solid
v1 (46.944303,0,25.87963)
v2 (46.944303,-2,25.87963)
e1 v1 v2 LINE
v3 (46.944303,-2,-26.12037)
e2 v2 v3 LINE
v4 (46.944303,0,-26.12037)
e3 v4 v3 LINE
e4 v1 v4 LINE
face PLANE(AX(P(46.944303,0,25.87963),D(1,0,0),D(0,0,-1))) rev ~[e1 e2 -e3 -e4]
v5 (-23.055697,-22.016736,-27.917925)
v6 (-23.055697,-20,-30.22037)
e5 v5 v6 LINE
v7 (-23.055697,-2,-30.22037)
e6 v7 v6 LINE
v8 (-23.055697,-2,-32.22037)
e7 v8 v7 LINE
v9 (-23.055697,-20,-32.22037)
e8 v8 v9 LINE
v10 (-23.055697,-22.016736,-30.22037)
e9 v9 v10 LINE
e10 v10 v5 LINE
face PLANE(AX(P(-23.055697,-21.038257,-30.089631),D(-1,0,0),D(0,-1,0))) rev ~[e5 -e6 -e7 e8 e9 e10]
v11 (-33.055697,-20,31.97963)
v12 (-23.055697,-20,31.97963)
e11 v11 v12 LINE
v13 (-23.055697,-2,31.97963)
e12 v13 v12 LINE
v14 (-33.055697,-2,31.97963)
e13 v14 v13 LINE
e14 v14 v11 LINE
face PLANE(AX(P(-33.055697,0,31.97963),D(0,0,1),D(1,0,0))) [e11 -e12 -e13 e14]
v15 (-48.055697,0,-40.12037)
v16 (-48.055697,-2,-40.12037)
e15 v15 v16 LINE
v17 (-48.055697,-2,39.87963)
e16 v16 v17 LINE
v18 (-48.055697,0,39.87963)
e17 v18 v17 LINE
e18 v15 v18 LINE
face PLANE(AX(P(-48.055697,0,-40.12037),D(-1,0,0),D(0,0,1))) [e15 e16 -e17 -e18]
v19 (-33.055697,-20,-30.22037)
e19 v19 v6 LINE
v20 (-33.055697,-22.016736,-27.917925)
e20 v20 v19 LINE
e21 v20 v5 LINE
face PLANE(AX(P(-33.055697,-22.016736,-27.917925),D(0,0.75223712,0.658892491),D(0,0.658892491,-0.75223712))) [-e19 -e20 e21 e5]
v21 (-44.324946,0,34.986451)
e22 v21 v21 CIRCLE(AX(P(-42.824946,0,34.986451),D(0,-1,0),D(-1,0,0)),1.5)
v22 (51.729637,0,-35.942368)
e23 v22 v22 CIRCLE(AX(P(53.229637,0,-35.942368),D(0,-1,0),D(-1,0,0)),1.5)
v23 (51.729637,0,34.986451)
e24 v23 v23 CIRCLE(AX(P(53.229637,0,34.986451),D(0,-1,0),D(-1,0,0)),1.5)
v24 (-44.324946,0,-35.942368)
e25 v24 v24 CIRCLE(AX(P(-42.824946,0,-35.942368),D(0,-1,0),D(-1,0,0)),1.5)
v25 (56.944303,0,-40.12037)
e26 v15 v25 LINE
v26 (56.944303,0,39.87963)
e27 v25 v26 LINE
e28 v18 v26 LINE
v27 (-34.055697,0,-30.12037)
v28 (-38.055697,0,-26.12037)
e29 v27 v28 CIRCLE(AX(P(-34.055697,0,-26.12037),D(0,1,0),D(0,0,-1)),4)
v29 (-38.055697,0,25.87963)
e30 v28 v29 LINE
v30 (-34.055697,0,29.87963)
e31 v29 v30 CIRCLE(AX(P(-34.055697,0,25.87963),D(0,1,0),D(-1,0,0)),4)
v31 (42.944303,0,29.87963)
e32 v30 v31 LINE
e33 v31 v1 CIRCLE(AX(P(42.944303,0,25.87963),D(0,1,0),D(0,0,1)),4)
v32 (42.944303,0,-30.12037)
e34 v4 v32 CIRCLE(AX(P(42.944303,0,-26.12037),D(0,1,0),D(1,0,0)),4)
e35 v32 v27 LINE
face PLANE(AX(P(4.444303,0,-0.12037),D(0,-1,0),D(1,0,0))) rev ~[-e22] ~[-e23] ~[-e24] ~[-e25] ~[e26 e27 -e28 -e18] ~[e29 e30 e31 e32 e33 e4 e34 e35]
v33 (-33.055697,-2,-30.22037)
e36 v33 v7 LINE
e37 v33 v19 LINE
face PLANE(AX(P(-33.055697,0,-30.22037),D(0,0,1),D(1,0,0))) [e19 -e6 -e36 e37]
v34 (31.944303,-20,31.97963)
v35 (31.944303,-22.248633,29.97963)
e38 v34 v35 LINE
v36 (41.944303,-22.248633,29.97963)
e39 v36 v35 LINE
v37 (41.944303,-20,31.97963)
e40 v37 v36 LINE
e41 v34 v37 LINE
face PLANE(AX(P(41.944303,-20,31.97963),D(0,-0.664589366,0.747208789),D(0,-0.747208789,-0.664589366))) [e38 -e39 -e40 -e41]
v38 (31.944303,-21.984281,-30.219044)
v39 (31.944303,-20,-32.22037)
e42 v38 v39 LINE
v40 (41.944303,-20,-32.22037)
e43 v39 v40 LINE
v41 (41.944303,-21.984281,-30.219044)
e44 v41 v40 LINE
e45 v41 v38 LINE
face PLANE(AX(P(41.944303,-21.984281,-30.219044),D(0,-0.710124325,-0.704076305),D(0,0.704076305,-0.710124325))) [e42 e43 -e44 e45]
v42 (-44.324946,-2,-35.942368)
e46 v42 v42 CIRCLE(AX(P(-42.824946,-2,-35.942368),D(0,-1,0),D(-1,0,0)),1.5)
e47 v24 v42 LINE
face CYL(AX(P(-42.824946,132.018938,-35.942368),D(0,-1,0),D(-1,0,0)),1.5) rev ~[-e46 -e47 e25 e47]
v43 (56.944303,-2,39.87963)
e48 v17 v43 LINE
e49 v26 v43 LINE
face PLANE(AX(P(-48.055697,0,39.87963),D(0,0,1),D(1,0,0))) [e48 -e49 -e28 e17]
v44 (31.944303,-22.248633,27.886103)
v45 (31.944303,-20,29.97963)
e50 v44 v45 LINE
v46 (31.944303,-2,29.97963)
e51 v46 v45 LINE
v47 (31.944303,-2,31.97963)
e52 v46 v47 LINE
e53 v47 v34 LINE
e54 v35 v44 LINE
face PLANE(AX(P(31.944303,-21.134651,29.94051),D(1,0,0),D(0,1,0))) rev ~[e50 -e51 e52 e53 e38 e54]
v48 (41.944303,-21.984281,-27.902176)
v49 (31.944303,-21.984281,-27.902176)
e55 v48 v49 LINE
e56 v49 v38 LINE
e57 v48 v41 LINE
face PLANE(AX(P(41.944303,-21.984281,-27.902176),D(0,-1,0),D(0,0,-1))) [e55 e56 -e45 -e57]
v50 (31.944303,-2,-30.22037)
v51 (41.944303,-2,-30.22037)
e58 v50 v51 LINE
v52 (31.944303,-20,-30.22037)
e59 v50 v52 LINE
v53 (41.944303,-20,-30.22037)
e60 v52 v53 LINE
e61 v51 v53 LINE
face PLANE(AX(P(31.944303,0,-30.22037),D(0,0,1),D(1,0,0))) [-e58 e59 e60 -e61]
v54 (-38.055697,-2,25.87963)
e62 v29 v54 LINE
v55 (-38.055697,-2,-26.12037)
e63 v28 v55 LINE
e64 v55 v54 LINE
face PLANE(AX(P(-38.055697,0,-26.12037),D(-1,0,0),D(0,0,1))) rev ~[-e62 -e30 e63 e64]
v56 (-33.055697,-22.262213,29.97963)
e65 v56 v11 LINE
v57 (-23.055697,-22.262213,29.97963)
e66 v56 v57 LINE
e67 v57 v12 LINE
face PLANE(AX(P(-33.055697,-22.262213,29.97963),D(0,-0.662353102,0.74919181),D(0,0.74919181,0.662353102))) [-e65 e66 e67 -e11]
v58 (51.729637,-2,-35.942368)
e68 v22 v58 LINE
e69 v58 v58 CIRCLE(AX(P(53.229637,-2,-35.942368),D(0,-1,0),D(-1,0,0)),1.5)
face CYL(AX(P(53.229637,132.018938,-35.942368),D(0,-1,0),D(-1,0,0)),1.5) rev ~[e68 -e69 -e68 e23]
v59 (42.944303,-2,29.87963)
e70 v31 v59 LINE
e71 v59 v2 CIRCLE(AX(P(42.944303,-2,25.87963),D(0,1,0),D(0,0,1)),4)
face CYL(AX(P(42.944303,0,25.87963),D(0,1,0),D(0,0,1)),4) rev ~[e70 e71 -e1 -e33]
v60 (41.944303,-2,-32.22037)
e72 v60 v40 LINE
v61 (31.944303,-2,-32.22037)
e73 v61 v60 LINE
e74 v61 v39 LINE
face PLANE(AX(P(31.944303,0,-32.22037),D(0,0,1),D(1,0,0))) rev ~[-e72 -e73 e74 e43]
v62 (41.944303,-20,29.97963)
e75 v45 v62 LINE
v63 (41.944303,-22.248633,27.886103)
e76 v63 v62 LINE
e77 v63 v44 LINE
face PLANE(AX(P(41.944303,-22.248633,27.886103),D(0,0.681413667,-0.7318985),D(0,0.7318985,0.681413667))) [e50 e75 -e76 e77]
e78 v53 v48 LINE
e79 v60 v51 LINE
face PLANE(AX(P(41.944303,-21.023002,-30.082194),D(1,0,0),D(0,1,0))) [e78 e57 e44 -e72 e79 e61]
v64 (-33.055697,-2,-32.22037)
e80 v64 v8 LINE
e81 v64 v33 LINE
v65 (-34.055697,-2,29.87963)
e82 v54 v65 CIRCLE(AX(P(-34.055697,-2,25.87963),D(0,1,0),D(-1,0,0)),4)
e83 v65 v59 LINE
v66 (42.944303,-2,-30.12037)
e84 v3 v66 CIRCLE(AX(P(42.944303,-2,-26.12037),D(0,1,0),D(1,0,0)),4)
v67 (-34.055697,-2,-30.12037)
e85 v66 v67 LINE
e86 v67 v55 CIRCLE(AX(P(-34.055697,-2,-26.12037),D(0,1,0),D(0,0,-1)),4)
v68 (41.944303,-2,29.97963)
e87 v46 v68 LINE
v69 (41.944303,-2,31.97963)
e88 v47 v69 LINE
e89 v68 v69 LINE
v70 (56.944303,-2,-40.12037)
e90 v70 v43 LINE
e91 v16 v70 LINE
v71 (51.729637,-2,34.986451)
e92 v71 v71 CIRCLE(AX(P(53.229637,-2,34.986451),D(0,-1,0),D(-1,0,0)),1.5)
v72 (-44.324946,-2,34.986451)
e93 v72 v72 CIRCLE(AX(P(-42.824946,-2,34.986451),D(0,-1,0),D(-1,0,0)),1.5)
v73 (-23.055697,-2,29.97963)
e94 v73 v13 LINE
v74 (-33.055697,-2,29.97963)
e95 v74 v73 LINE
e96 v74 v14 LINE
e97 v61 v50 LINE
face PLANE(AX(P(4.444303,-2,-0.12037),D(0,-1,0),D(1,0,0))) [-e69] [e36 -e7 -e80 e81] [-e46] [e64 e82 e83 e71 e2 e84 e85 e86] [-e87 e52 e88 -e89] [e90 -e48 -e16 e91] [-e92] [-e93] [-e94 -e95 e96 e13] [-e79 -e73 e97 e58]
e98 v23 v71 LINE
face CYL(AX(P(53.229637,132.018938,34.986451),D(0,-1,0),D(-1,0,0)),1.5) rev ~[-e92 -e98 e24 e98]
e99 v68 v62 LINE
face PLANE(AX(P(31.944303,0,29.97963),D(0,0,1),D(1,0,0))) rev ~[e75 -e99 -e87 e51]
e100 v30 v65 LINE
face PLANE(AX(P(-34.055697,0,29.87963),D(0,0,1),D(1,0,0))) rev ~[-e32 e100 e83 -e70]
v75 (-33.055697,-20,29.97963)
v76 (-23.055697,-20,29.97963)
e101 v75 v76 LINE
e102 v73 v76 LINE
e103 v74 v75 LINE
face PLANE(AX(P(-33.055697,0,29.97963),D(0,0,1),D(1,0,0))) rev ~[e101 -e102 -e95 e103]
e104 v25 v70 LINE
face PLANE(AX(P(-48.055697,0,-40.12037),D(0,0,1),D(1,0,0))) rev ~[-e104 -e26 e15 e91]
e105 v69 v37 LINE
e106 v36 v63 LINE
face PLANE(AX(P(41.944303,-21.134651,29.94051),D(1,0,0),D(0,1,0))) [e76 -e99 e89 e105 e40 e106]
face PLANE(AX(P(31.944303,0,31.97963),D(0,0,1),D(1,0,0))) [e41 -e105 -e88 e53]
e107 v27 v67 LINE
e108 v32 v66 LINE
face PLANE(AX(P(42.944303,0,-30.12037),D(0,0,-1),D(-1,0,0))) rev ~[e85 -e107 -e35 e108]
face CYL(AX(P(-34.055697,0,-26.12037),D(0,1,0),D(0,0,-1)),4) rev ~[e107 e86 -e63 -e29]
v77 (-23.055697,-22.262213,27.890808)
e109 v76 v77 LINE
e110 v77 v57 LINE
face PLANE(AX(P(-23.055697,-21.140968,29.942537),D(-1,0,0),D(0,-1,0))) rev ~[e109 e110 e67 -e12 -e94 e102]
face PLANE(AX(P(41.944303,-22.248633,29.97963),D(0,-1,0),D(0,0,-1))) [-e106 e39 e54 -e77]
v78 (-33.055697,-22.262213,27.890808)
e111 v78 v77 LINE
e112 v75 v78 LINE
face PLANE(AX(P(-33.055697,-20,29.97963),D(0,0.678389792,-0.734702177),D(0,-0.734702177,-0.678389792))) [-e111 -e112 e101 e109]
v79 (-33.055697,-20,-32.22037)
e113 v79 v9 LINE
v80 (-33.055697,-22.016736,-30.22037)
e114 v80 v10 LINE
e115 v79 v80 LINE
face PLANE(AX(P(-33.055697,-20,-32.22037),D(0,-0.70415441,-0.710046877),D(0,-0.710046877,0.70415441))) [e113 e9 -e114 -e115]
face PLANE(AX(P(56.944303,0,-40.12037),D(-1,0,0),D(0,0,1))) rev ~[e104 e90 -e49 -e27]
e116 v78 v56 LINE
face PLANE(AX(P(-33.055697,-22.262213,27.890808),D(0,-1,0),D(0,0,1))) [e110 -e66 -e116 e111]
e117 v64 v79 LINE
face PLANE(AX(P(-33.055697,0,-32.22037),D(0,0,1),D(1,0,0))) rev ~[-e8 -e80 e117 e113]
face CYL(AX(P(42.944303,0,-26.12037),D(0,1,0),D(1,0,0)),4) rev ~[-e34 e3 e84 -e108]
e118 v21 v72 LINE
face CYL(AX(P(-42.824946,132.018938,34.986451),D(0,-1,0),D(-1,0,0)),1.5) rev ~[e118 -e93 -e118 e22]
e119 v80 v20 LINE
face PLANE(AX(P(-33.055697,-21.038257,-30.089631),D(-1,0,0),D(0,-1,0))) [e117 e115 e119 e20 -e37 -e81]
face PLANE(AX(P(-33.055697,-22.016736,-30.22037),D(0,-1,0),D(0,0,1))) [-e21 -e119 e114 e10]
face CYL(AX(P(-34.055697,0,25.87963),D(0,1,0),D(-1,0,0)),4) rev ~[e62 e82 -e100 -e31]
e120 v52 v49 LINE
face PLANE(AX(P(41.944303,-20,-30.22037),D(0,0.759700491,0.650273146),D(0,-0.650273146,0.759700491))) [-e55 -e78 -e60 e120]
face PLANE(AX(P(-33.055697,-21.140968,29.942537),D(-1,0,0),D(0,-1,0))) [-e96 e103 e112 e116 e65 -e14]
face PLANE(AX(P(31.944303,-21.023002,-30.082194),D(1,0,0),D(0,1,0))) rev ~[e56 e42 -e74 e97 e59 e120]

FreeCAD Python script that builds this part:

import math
import FreeCAD as App
import Part
import Sketcher


def add_polygon(sketch, points):
    """Adds a closed chain of lines whose ends are joined by coincident constraints."""
    first, n = sketch.GeometryCount, len(points)
    for a, b in zip(points, points[1:] + points[:1]):
        sketch.addGeometry(Part.LineSegment(App.Vector(*a, 0), App.Vector(*b, 0)), False)
    for i in range(n):
        sketch.addConstraint(Sketcher.Constraint("Coincident", first + i, 2, first + (i + 1) % n, 1))

doc = App.newDocument("Part")
body = doc.addObject("PartDesign::Body", "Body")

sketch1 = body.newObject("Sketcher::SketchObject", "Sketch")
sketch1.AttachmentSupport = (doc.getObject("XZ_Plane"), [""])
sketch1.MapMode = "FlatFace"
add_polygon(sketch1, [(-48.055697, 39.87963), (-48.055697, -40.12037), (56.944303, -40.12037), (56.944303, 39.87963)])
add_polygon(sketch1, [(-23.055697, -32.22037), (-33.055697, -32.22037), (-33.055697, -30.22037), (-23.055697, -30.22037)])
add_polygon(sketch1, [(41.944303, -32.22037), (31.944303, -32.22037), (31.944303, -30.22037), (41.944303, -30.22037)])
add_polygon(sketch1, [(-23.055697, 29.97963), (-33.055697, 29.97963), (-33.055697, 31.97963), (-23.055697, 31.97963)])
sketch1.addGeometry(Part.LineSegment(App.Vector(-38.055697, -26.12037, 0), App.Vector(-38.055697, 25.87963, 0)), False)
sketch1.addGeometry(Part.ArcOfCircle(Part.Circle(App.Vector(-34.055697, 25.87963, 0), App.Vector(0, 0, 1), 4), math.radians(90), math.radians(180)), False)
sketch1.addGeometry(Part.LineSegment(App.Vector(-34.055697, 29.87963, 0), App.Vector(42.944303, 29.87963, 0)), False)
sketch1.addGeometry(Part.ArcOfCircle(Part.Circle(App.Vector(42.944303, 25.87963, 0), App.Vector(0, 0, 1), 4), math.radians(0), math.radians(90)), False)
sketch1.addGeometry(Part.LineSegment(App.Vector(46.944303, 25.87963, 0), App.Vector(46.944303, -26.12037, 0)), False)
sketch1.addGeometry(Part.ArcOfCircle(Part.Circle(App.Vector(42.944303, -26.12037, 0), App.Vector(0, 0, 1), 4), math.radians(-90), math.radians(0)), False)
sketch1.addGeometry(Part.LineSegment(App.Vector(42.944303, -30.12037, 0), App.Vector(-34.055697, -30.12037, 0)), False)
sketch1.addGeometry(Part.ArcOfCircle(Part.Circle(App.Vector(-34.055697, -26.12037, 0), App.Vector(0, 0, 1), 4), math.radians(180), math.radians(270)), False)
add_polygon(sketch1, [(41.944303, 29.97963), (31.944303, 29.97963), (31.944303, 31.97963), (41.944303, 31.97963)])
sketch1.addConstraint([
    Sketcher.Constraint("Tangent", 16, 2, 17, 2),
    Sketcher.Constraint("Tangent", 17, 1, 18, 1),
    Sketcher.Constraint("Tangent", 18, 2, 19, 2),
    Sketcher.Constraint("Tangent", 19, 1, 20, 1),
    Sketcher.Constraint("Tangent", 20, 2, 21, 2),
    Sketcher.Constraint("Tangent", 21, 1, 22, 1),
    Sketcher.Constraint("Tangent", 22, 2, 23, 2),
    Sketcher.Constraint("Tangent", 23, 1, 16, 1),
    Sketcher.Constraint("Vertical", 0),
    Sketcher.Constraint("Horizontal", 1),
    Sketcher.Constraint("Vertical", 2),
    Sketcher.Constraint("Horizontal", 3),
    Sketcher.Constraint("Horizontal", 4),
    Sketcher.Constraint("Vertical", 5),
    Sketcher.Constraint("Horizontal", 6),
    Sketcher.Constraint("Vertical", 7),
    Sketcher.Constraint("Horizontal", 8),
    Sketcher.Constraint("Vertical", 9),
    Sketcher.Constraint("Horizontal", 10),
    Sketcher.Constraint("Vertical", 11),
    Sketcher.Constraint("Horizontal", 12),
    Sketcher.Constraint("Vertical", 13),
    Sketcher.Constraint("Horizontal", 14),
    Sketcher.Constraint("Vertical", 15),
    Sketcher.Constraint("Vertical", 16),
    Sketcher.Constraint("Horizontal", 18),
    Sketcher.Constraint("Vertical", 20),
    Sketcher.Constraint("Horizontal", 22),
    Sketcher.Constraint("Horizontal", 24),
    Sketcher.Constraint("Vertical", 25),
    Sketcher.Constraint("Horizontal", 26),
    Sketcher.Constraint("Vertical", 27),
    Sketcher.Constraint("Equal", 17, 19),
    Sketcher.Constraint("Equal", 19, 21),
    Sketcher.Constraint("Equal", 21, 23),
    Sketcher.Constraint("Horizontal", 7, 2, 8, 2),
    Sketcher.Constraint("Horizontal", 6, 2, 9, 2),
    Sketcher.Constraint("Horizontal", 15, 2, 24, 2),
    Sketcher.Constraint("Horizontal", 14, 2, 25, 2),
    Sketcher.Constraint("Vertical", 5, 2, 12, 2),
    Sketcher.Constraint("Vertical", 7, 2, 14, 2),
    Sketcher.Constraint("Vertical", 9, 2, 24, 2),
    Sketcher.Constraint("Vertical", 11, 2, 26, 2),
    Sketcher.Constraint("Equal", 6, 8),
    Sketcher.Constraint("Equal", 11, 13),
    Sketcher.Constraint("Radius", 17, 4.0),
    Sketcher.Constraint("DistanceX", 1, 1, 1, 2, 105.0),
    Sketcher.Constraint("DistanceX", 4, 2, 4, 1, 10.0),
    Sketcher.Constraint("DistanceX", 18, 1, 18, 2, 77.0),
    Sketcher.Constraint("DistanceY", 0, 2, 0, 1, 80.0),
    Sketcher.Constraint("DistanceY", 5, 1, 5, 2, 2.0),
    Sketcher.Constraint("DistanceY", 16, 1, 16, 2, 52.0),
    Sketcher.Constraint("DistanceX", 0, 2, 23, 3, 14.0),
    Sketcher.Constraint("DistanceY", 0, 2, 23, 3, 14.0),
    Sketcher.Constraint("DistanceX", 23, 3, 4, 2, 1.0),
    Sketcher.Constraint("DistanceX", 8, 2, 21, 3, 11.0),
    Sketcher.Constraint("DistanceY", 4, 2, 23, 3, 6.1),
    Sketcher.Constraint("DistanceY", 17, 3, 12, 2, 4.1),
    Sketcher.Constraint("DistanceY", -1, 1, 17, 3, 25.87963),
    Sketcher.Constraint("DistanceX", 17, 3, -1, 1, 34.055697),
])
pad1 = body.newObject("PartDesign::Pad", "Pad")
pad1.Profile = sketch1
pad1.Length = 2

sketch2 = body.newObject("Sketcher::SketchObject", "Sketch001")
sketch2.AttachmentSupport = (doc.getObject("XZ_Plane"), [""])
sketch2.MapMode = "FlatFace"
sketch2.addGeometry([
    Part.Circle(App.Vector(-42.824946, 34.986451, 0), App.Vector(0, 0, 1), 1.5),
    Part.Circle(App.Vector(-42.824946, -35.942368, 0), App.Vector(0, 0, 1), 1.5),
    Part.Circle(App.Vector(53.229637, -35.942368, 0), App.Vector(0, 0, 1), 1.5),
    Part.Circle(App.Vector(53.229637, 34.986451, 0), App.Vector(0, 0, 1), 1.5),
], False)
sketch2.addConstraint([
    Sketcher.Constraint("Equal", 0, 1),
    Sketcher.Constraint("Equal", 1, 2),
    Sketcher.Constraint("Equal", 2, 3),
    Sketcher.Constraint("Horizontal", 1, 3, 2, 3),
    Sketcher.Constraint("Horizontal", 0, 3, 3, 3),
    Sketcher.Constraint("Vertical", 0, 3, 1, 3),
    Sketcher.Constraint("Vertical", 2, 3, 3, 3),
    Sketcher.Constraint("Diameter", 0, 3.0),
    Sketcher.Constraint("DistanceY", -1, 1, 0, 3, 34.986451),
    Sketcher.Constraint("DistanceY", 1, 3, -1, 1, 35.942368),
    Sketcher.Constraint("DistanceX", 0, 3, -1, 1, 42.824946),
    Sketcher.Constraint("DistanceX", -1, 1, 2, 3, 53.229637),
])
doc.recompute()
hole = body.newObject("PartDesign::Hole", "Hole")
hole.Profile = sketch2
hole.ThreadType = "None"
hole.Diameter = 3
hole.DepthType = "ThroughAll"
hole.Reversed = True

sketch3 = body.newObject("Sketcher::SketchObject", "Sketch002")
sketch3.AttachmentSupport = (doc.getObject("XZ_Plane"), [""])
sketch3.MapMode = "FlatFace"
add_polygon(sketch3, [(-33.055697, 31.97963), (-33.055697, 29.97963), (-23.055697, 29.97963), (-23.055697, 31.97963)])
add_polygon(sketch3, [(31.944303, 31.97963), (31.944303, 29.97963), (41.944303, 29.97963), (41.944303, 31.97963)])
add_polygon(sketch3, [(-33.055697, -30.22037), (-33.055697, -32.22037), (-23.055697, -32.22037), (-23.055697, -30.22037)])
add_polygon(sketch3, [(31.944303, -30.22037), (31.944303, -32.22037), (41.944303, -32.22037), (41.944303, -30.22037)])
sketch3.addConstraint([
    Sketcher.Constraint("Vertical", 0),
    Sketcher.Constraint("Horizontal", 1),
    Sketcher.Constraint("Vertical", 2),
    Sketcher.Constraint("Horizontal", 3),
    Sketcher.Constraint("Vertical", 4),
    Sketcher.Constraint("Horizontal", 5),
    Sketcher.Constraint("Vertical", 6),
    Sketcher.Constraint("Horizontal", 7),
    Sketcher.Constraint("Vertical", 8),
    Sketcher.Constraint("Horizontal", 9),
    Sketcher.Constraint("Vertical", 10),
    Sketcher.Constraint("Horizontal", 11),
    Sketcher.Constraint("Vertical", 12),
    Sketcher.Constraint("Horizontal", 13),
    Sketcher.Constraint("Vertical", 14),
    Sketcher.Constraint("Horizontal", 15),
    Sketcher.Constraint("Horizontal", 1, 2, 4, 2),
    Sketcher.Constraint("Horizontal", 3, 2, 6, 2),
    Sketcher.Constraint("Horizontal", 9, 2, 12, 2),
    Sketcher.Constraint("Horizontal", 11, 2, 14, 2),
    Sketcher.Constraint("Vertical", 3, 2, 8, 2),
    Sketcher.Constraint("Vertical", 2, 2, 9, 2),
    Sketcher.Constraint("Vertical", 7, 2, 12, 2),
    Sketcher.Constraint("Vertical", 6, 2, 13, 2),
    Sketcher.Constraint("Equal", 3, 5),
    Sketcher.Constraint("Equal", 6, 8),
    Sketcher.Constraint("DistanceX", 1, 1, 1, 2, 10.0),
    Sketcher.Constraint("DistanceY", 0, 2, 0, 1, 2.0),
    Sketcher.Constraint("DistanceX", 1, 2, 4, 2, 55.0),
    Sketcher.Constraint("DistanceY", 8, 2, 0, 2, 62.2),
    Sketcher.Constraint("DistanceY", -1, 1, 0, 2, 29.97963),
    Sketcher.Constraint("DistanceX", 0, 2, -1, 1, 33.055697),
])
pad2 = body.newObject("PartDesign::Pad", "Pad001")
pad2.Profile = sketch3
pad2.Length = 20

sketch4 = body.newObject("Sketcher::SketchObject", "Sketch003")
sketch4.AttachmentSupport = (doc.getObject("YZ_Plane"), [""])
sketch4.MapMode = "FlatFace"
sketch4.AttachmentOffset = App.Placement(App.Vector(0, 0, -33.055697), App.Rotation())
add_polygon(sketch4, [(-20, 31.97963), (-20, 29.97963), (-22.262213, 27.890808), (-22.262213, 29.97963)])
sketch4.addConstraint([
    Sketcher.Constraint("Vertical", 0),
    Sketcher.Constraint("Vertical", 2),
    Sketcher.Constraint("Horizontal", 0, 2, 2, 2),
    Sketcher.Constraint("DistanceY", 0, 2, 0, 1, 2.0),
    Sketcher.Constraint("DistanceX", 0, 2, -1, 1, 20.0),
    Sketcher.Constraint("DistanceY", 2, 1, 2, 2, 2.088822),
    Sketcher.Constraint("Distance", 1, 3.079088),
    Sketcher.Constraint("DistanceY", -1, 1, 0, 2, 29.97963),
])
pad3 = body.newObject("PartDesign::Pad", "Pad002")
pad3.Profile = sketch4
pad3.Length = 10

sketch5 = body.newObject("Sketcher::SketchObject", "Sketch004")
sketch5.AttachmentSupport = (doc.getObject("YZ_Plane"), [""])
sketch5.MapMode = "FlatFace"
sketch5.AttachmentOffset = App.Placement(App.Vector(0, 0, -33.055697), App.Rotation())
add_polygon(sketch5, [(-22.016736, -27.917925), (-20, -30.22037), (-20, -32.22037), (-22.016736, -30.22037)])
sketch5.addConstraint([
    Sketcher.Constraint("Vertical", 1),
    Sketcher.Constraint("Vertical", 3),
    Sketcher.Constraint("Horizontal", 0, 2, 2, 2),
    Sketcher.Constraint("DistanceY", 1, 2, 1, 1, 2.0),
    Sketcher.Constraint("DistanceX", 0, 2, -1, 1, 20.0),
    Sketcher.Constraint("DistanceY", 3, 1, 3, 2, 2.302445),
    Sketcher.Constraint("DistanceY", 0, 2, -1, 1, 30.22037),
    Sketcher.Constraint("Distance", 0, 3.060797),
])
pad4 = body.newObject("PartDesign::Pad", "Pad003")
pad4.Profile = sketch5
pad4.Length = 10

sketch6 = body.newObject("Sketcher::SketchObject", "Sketch005")
sketch6.AttachmentSupport = (doc.getObject("YZ_Plane"), [""])
sketch6.MapMode = "FlatFace"
sketch6.AttachmentOffset = App.Placement(App.Vector(0, 0, 41.944303), App.Rotation())
add_polygon(sketch6, [(-22.248633, 27.886103), (-20, 29.97963), (-20, 31.97963), (-22.248633, 29.97963)])
sketch6.addConstraint([
    Sketcher.Constraint("Vertical", 1),
    Sketcher.Constraint("Vertical", 3),
    Sketcher.Constraint("Horizontal", 0, 2, 2, 2),
    Sketcher.Constraint("DistanceY", 1, 1, 1, 2, 2.0),
    Sketcher.Constraint("DistanceX", 0, 2, -1, 1, 20.0),
    Sketcher.Constraint("Distance", 0, 3.072329),
    Sketcher.Constraint("DistanceY", 3, 2, 3, 1, 2.093527),
    Sketcher.Constraint("DistanceY", -1, 1, 0, 2, 29.97963),
])
pad5 = body.newObject("PartDesign::Pad", "Pad004")
pad5.Profile = sketch6
pad5.Length = 10
pad5.Reversed = True

sketch7 = body.newObject("Sketcher::SketchObject", "Sketch006")
sketch7.AttachmentSupport = (doc.getObject("YZ_Plane"), [""])
sketch7.MapMode = "FlatFace"
sketch7.AttachmentOffset = App.Placement(App.Vector(0, 0, 41.944303), App.Rotation())
add_polygon(sketch7, [(-21.984281, -30.219044), (-20, -32.22037), (-20, -30.22037), (-21.984281, -27.902176)])
sketch7.addConstraint([
    Sketcher.Constraint("Vertical", 1),
    Sketcher.Constraint("Vertical", 3),
    Sketcher.Constraint("DistanceY", 1, 1, 1, 2, 2.0),
    Sketcher.Constraint("DistanceX", 0, 2, -1, 1, 20.0),
    Sketcher.Constraint("DistanceY", 3, 2, 3, 1, 2.316868),
    Sketcher.Constraint("DistanceY", 0, 2, -1, 1, 32.22037),
    Sketcher.Constraint("DistanceX", 2, 2, -1, 1, 21.984281),
    Sketcher.Constraint("Distance", 0, 2.818276),
])
pad6 = body.newObject("PartDesign::Pad", "Pad005")
pad6.Profile = sketch7
pad6.Length = 10
pad6.Reversed = True

doc.recompute()
